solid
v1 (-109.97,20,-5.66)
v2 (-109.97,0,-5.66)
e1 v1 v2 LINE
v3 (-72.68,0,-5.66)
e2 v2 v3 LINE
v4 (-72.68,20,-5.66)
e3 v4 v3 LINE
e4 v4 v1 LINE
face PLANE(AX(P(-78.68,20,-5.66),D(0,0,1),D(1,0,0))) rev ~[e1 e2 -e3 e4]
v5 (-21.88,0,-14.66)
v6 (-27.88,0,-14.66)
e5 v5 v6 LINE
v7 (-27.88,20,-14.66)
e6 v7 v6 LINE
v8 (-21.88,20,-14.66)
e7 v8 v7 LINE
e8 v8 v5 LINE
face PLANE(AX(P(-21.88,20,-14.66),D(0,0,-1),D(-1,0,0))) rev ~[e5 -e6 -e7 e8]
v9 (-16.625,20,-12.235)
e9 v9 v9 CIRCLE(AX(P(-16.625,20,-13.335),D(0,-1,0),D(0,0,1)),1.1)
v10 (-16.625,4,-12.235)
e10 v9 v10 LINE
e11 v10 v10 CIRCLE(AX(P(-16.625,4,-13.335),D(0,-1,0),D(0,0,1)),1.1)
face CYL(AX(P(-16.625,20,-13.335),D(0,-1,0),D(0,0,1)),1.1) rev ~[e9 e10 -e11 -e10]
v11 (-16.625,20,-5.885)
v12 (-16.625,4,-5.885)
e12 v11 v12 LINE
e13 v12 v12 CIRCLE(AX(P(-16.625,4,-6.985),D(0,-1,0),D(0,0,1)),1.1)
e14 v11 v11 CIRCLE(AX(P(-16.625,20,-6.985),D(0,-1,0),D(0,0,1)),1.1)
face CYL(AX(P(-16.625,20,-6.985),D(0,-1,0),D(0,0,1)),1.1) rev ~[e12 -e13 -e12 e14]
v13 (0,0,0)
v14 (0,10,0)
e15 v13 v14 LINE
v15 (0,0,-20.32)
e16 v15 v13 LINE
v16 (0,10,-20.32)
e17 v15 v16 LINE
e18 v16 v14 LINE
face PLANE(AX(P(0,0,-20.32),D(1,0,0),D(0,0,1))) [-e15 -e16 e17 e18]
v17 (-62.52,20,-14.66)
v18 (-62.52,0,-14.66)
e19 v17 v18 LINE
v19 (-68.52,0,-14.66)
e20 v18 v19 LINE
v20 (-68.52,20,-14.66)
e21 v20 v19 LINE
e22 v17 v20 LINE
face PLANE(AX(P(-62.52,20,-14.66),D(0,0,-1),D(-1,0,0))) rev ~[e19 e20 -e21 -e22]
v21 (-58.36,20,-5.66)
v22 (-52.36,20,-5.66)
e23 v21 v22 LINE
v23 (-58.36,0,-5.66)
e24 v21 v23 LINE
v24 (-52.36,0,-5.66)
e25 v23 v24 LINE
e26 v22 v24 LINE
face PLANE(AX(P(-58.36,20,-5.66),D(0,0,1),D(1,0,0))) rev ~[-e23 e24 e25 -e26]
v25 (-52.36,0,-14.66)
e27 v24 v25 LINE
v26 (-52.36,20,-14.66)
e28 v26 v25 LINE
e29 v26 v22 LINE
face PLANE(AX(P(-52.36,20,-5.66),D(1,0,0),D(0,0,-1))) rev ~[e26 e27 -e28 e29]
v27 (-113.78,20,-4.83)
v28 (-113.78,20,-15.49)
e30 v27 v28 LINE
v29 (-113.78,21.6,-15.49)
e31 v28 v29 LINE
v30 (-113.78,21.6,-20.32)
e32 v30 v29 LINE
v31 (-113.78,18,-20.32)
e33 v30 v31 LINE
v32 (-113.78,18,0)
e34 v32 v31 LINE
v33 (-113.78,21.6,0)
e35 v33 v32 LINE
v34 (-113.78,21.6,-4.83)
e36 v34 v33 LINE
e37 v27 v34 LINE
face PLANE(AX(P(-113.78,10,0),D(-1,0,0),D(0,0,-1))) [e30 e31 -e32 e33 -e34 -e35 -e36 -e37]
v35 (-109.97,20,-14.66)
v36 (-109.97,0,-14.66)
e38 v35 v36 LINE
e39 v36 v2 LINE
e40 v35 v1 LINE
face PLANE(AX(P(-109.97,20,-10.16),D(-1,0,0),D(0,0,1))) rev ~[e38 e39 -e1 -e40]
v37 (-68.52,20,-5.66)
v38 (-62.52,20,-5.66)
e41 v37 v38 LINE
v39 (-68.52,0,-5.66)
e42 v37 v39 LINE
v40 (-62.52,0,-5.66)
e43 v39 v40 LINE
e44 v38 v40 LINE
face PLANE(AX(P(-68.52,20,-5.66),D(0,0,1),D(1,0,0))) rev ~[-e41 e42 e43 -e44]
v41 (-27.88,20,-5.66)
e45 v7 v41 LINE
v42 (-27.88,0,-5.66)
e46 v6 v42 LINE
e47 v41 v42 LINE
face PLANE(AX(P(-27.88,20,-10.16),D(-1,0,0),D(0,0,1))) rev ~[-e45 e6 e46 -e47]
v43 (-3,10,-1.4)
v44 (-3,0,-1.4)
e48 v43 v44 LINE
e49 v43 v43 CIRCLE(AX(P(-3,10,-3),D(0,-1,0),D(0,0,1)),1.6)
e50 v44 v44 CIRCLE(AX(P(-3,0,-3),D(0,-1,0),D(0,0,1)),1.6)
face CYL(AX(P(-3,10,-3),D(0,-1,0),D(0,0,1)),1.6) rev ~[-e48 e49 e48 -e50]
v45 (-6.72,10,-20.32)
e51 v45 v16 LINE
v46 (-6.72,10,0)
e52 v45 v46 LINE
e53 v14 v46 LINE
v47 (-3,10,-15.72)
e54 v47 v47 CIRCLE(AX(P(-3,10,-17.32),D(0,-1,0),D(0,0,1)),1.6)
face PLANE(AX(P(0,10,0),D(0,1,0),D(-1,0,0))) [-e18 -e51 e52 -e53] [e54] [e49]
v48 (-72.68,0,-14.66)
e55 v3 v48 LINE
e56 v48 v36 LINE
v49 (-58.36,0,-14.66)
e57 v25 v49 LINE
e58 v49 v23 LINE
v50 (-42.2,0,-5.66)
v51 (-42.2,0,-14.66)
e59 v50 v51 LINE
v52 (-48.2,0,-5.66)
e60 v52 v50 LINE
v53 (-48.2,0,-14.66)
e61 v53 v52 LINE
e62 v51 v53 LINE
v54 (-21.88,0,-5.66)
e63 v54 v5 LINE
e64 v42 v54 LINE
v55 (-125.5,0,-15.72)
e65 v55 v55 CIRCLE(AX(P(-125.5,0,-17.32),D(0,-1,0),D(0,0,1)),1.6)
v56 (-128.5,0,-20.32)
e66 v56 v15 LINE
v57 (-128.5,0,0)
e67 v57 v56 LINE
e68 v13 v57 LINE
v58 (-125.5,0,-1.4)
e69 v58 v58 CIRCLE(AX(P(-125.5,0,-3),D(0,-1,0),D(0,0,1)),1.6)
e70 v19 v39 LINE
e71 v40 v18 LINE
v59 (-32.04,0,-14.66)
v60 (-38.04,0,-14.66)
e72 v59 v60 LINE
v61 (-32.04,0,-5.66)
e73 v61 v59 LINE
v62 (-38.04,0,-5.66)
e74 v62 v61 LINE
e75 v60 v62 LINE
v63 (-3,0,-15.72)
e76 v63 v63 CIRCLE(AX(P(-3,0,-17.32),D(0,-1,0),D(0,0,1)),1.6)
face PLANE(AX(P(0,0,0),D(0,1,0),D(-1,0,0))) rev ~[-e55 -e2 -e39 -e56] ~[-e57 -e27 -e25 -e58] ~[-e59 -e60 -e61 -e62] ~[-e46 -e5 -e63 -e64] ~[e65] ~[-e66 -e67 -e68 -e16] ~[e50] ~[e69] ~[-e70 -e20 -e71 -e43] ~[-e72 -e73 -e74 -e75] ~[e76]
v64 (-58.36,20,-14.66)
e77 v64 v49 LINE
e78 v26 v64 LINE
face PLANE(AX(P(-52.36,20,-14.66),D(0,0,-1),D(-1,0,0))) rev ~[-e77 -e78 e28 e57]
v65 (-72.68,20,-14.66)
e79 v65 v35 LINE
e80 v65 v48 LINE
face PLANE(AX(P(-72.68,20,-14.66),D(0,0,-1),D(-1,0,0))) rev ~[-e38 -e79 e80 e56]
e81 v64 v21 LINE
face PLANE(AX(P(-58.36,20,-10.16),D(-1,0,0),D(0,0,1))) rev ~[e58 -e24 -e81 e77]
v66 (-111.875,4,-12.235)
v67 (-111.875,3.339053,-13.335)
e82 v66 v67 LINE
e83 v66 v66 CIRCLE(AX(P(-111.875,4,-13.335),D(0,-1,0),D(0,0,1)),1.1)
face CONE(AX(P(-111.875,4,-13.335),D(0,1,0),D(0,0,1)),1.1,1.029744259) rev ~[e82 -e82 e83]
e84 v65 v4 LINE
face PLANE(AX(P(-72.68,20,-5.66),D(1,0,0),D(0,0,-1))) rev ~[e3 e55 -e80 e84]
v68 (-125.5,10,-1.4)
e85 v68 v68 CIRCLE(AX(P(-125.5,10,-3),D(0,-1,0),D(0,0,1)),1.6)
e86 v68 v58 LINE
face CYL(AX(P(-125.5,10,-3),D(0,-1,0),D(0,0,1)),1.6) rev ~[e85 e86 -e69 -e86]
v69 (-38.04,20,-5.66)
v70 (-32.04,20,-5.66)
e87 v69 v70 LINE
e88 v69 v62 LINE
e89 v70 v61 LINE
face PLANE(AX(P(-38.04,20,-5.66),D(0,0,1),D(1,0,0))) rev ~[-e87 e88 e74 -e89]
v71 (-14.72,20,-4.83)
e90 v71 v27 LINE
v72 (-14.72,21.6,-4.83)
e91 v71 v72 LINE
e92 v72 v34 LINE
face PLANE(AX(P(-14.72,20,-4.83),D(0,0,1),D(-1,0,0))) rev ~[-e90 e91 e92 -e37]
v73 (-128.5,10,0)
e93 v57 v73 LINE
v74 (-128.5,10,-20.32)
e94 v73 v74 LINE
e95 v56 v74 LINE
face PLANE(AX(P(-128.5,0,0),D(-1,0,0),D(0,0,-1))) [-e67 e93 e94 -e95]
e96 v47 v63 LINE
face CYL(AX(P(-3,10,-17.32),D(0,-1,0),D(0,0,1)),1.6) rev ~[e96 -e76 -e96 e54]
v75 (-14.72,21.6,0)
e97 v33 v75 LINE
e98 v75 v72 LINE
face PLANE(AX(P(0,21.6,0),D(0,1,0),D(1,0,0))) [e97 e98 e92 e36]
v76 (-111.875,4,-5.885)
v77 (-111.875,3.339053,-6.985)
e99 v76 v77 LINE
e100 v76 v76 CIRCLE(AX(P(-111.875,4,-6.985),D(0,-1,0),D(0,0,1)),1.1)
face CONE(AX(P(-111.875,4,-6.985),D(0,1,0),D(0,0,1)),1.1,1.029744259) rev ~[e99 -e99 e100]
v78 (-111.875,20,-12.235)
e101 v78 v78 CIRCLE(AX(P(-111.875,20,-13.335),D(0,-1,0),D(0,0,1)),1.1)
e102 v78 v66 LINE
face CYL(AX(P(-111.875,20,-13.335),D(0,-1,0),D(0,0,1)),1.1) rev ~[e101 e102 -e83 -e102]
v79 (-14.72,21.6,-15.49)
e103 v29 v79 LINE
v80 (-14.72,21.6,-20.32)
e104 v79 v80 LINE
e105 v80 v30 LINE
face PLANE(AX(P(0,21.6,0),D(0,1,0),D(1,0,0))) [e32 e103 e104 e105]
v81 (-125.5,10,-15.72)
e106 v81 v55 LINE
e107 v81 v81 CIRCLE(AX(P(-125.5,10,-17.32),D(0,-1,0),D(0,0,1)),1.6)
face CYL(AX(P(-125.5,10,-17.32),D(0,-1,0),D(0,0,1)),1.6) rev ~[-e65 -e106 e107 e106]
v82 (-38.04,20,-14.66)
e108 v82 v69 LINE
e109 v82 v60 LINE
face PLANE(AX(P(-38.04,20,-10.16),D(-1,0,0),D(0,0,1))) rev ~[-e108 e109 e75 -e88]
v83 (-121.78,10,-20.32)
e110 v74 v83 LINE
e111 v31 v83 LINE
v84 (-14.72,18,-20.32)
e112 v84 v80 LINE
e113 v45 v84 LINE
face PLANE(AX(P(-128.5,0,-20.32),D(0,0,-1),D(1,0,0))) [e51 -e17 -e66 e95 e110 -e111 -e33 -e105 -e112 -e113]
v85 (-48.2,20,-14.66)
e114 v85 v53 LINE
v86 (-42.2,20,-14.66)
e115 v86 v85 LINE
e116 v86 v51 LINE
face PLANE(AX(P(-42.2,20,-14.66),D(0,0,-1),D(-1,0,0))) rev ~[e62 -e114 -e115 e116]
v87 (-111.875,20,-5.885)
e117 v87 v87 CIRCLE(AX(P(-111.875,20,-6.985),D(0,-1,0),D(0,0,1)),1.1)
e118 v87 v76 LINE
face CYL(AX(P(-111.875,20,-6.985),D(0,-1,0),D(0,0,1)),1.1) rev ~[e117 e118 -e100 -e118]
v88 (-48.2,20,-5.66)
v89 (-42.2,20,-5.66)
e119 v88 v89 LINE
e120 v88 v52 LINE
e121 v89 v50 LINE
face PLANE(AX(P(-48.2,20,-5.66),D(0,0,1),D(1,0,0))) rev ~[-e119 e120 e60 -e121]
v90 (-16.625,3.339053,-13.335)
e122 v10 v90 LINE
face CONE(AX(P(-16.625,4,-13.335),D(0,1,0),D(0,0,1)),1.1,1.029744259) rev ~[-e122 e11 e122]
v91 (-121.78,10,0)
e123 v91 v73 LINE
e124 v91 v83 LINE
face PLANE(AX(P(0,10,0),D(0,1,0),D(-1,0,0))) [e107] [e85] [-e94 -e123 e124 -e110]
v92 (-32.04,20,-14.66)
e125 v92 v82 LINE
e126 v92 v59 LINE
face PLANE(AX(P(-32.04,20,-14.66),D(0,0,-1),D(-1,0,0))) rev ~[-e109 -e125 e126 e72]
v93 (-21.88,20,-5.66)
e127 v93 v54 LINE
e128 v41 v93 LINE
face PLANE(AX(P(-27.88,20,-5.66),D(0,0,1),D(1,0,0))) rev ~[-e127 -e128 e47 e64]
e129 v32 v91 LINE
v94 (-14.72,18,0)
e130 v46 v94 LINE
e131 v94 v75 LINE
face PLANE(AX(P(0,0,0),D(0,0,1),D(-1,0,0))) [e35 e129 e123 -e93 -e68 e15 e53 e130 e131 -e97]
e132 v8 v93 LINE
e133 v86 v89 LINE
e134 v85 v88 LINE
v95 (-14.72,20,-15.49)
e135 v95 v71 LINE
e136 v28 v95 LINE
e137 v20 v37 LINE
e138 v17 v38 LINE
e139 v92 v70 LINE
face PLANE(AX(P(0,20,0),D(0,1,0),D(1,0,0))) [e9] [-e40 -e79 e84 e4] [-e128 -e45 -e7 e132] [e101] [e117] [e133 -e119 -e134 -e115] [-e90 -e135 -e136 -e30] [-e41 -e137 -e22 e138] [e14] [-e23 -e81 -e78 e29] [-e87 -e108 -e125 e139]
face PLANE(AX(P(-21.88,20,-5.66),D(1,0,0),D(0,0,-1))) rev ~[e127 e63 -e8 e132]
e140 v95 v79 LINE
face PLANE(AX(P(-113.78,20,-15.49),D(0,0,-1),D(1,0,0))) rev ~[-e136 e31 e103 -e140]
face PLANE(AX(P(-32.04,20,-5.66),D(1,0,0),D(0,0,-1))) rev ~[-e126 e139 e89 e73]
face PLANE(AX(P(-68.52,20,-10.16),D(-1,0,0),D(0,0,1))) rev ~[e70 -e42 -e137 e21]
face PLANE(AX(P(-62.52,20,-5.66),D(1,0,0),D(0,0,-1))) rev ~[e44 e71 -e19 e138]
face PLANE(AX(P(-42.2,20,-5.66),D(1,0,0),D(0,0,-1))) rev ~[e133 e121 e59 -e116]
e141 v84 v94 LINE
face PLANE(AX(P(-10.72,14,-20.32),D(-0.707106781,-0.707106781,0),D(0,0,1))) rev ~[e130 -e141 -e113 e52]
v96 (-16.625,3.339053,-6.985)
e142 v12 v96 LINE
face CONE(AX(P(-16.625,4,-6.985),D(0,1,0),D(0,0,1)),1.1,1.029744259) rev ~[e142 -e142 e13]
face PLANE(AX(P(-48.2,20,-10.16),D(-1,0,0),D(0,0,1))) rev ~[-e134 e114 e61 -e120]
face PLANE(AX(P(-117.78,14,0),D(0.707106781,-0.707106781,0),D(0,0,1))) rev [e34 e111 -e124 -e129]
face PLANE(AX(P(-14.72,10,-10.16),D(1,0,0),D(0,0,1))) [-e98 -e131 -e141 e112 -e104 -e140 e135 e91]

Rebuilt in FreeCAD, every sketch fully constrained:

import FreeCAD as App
import Part
import Sketcher

V = App.Vector


def edges_at(feature, points):
    """Names of the edges that pass closest to the given points."""
    edges = feature.Shape.Edges
    near = lambda p: min(range(len(edges)), key=lambda i: edges[i].distToShape(Part.Vertex(*p))[0])
    return sorted({f"Edge{near(p) + 1}" for p in points})

doc = App.newDocument("Part")
body = doc.addObject("PartDesign::Body", "Body")

sketch1 = body.newObject("Sketcher::SketchObject", "Sketch")
sketch1.AttachmentSupport = (doc.getObject("XZ_Plane"), [""])
sketch1.MapMode = "FlatFace"
sketch1.addGeometry([
    Part.LineSegment(V(-128, 0, 0), V(0, 0, 0)),
    Part.LineSegment(V(0, 0, 0), V(0, -20, 0)),
    Part.LineSegment(V(0, -20, 0), V(-128, -20, 0)),
    Part.LineSegment(V(-128, -20, 0), V(-128, 0, 0)),
], False)
sketch1.addConstraint([
    Sketcher.Constraint("Coincident", 0, 2, 1, 1),
    Sketcher.Constraint("Coincident", 1, 2, 2, 1),
    Sketcher.Constraint("Coincident", 2, 2, 3, 1),
    Sketcher.Constraint("Coincident", 3, 2, 0, 1),
    Sketcher.Constraint("Horizontal", 0),
    Sketcher.Constraint("Vertical", 1),
    Sketcher.Constraint("Horizontal", 2),
    Sketcher.Constraint("Vertical", 3),
    Sketcher.Constraint("Coincident", 0, 2, -1, 1),
    Sketcher.Constraint("DistanceX", 0, 1, 0, 2, 128.5),
    Sketcher.Constraint("DistanceY", 1, 2, 1, 1, 20.32),
])
pad1 = body.newObject("PartDesign::Pad", "Pad")
pad1.Profile = sketch1
pad1.Length = 10
pad1.Reversed = True

sketch2 = body.newObject("Sketcher::SketchObject", "Sketch001")
sketch2.AttachmentSupport = (doc.getObject("XZ_Plane"), [""])
sketch2.MapMode = "FlatFace"
sketch2.AttachmentOffset = App.Placement(V(0, 0, -10), App.Rotation())
sketch2.addGeometry([
    Part.LineSegment(V(-114, -20, 0), V(-114, 0, 0)),
    Part.LineSegment(V(-114, 0, 0), V(-15, 0, 0)),
    Part.LineSegment(V(-15, 0, 0), V(-15, -20, 0)),
    Part.LineSegment(V(-15, -20, 0), V(-114, -20, 0)),
], False)
sketch2.addConstraint([
    Sketcher.Constraint("Coincident", 0, 2, 1, 1),
    Sketcher.Constraint("Coincident", 1, 2, 2, 1),
    Sketcher.Constraint("Coincident", 2, 2, 3, 1),
    Sketcher.Constraint("Coincident", 3, 2, 0, 1),
    Sketcher.Constraint("Vertical", 0),
    Sketcher.Constraint("Horizontal", 1),
    Sketcher.Constraint("Vertical", 2),
    Sketcher.Constraint("Horizontal", 3),
    Sketcher.Constraint("PointOnObject", 0, 2, -1),
    Sketcher.Constraint("DistanceX", 1, 1, 1, 2, 99.06),
    Sketcher.Constraint("DistanceY", 0, 1, 0, 2, 20.32),
    Sketcher.Constraint("DistanceX", 0, 2, -1, 1, 113.78),
])
pad2 = body.newObject("PartDesign::Pad", "Pad001")
pad2.Profile = sketch2
pad2.Length = 10
pad2.Reversed = True

sketch3 = body.newObject("Sketcher::SketchObject", "Sketch002")
sketch3.AttachmentSupport = (doc.getObject("XZ_Plane"), [""])
sketch3.MapMode = "FlatFace"
sketch3.AttachmentOffset = App.Placement(V(0, 0, -10), App.Rotation())
sketch3.addGeometry([
    Part.Circle(V(-125.5, -3, 0), V(0, 0, 1), 1.6),
    Part.Circle(V(-125.5, -17.3, 0), V(0, 0, 1), 1.6),
    Part.Circle(V(-3, -17.3, 0), V(0, 0, 1), 1.6),
    Part.Circle(V(-3, -3, 0), V(0, 0, 1), 1.6),
], False)
sketch3.addConstraint([
    Sketcher.Constraint("Equal", 0, 1),
    Sketcher.Constraint("Equal", 1, 2),
    Sketcher.Constraint("Equal", 2, 3),
    Sketcher.Constraint("Horizontal", 1, 3, 2, 3),
    Sketcher.Constraint("Horizontal", 0, 3, 3, 3),
    Sketcher.Constraint("Vertical", 0, 3, 1, 3),
    Sketcher.Constraint("Vertical", 2, 3, 3, 3),
    Sketcher.Constraint("Diameter", 0, 3.2),
    Sketcher.Constraint("DistanceY", 0, 3, -1, 1, 3.0),
    Sketcher.Constraint("DistanceX", 2, 3, -1, 1, 3.0),
    Sketcher.Constraint("DistanceX", 0, 3, -1, 1, 125.5),
    Sketcher.Constraint("DistanceY", 1, 3, -1, 1, 17.32),
])
doc.recompute()
hole = body.newObject("PartDesign::Hole", "Hole")
hole.Profile = sketch3
hole.ThreadType = "None"
hole.Diameter = 3.2
hole.DepthType = "ThroughAll"
hole.Reversed = True

sketch4 = body.newObject("Sketcher::SketchObject", "Sketch003")
sketch4.AttachmentSupport = (doc.getObject("XZ_Plane"), [""])
sketch4.MapMode = "FlatFace"
sketch4.AttachmentOffset = App.Placement(V(0, 0, -20), App.Rotation())
sketch4.addGeometry([
    Part.LineSegment(V(-22, -6, 0), V(-22, -15, 0)),
    Part.LineSegment(V(-22, -15, 0), V(-28, -15, 0)),
    Part.LineSegment(V(-28, -15, 0), V(-28, -6, 0)),
    Part.LineSegment(V(-28, -6, 0), V(-22, -6, 0)),
    Part.LineSegment(V(-73, -6, 0), V(-73, -15, 0)),
    Part.LineSegment(V(-73, -15, 0), V(-110, -15, 0)),
    Part.LineSegment(V(-110, -15, 0), V(-110, -6, 0)),
    Part.LineSegment(V(-110, -6, 0), V(-73, -6, 0)),
    Part.LineSegment(V(-63, -6, 0), V(-63, -15, 0)),
    Part.LineSegment(V(-63, -15, 0), V(-69, -15, 0)),
    Part.LineSegment(V(-69, -15, 0), V(-69, -6, 0)),
    Part.LineSegment(V(-69, -6, 0), V(-63, -6, 0)),
    Part.LineSegment(V(-52, -6, 0), V(-52, -15, 0)),
    Part.LineSegment(V(-52, -15, 0), V(-58, -15, 0)),
    Part.LineSegment(V(-58, -15, 0), V(-58, -6, 0)),
    Part.LineSegment(V(-58, -6, 0), V(-52, -6, 0)),
    Part.LineSegment(V(-42, -6, 0), V(-42, -15, 0)),
    Part.LineSegment(V(-42, -15, 0), V(-48, -15, 0)),
    Part.LineSegment(V(-48, -15, 0), V(-48, -6, 0)),
    Part.LineSegment(V(-48, -6, 0), V(-42, -6, 0)),
    Part.LineSegment(V(-32, -6, 0), V(-32, -15, 0)),
    Part.LineSegment(V(-32, -15, 0), V(-38, -15, 0)),
    Part.LineSegment(V(-38, -15, 0), V(-38, -6, 0)),
    Part.LineSegment(V(-38, -6, 0), V(-32, -6, 0)),
], False)
sketch4.addConstraint([
    Sketcher.Constraint("Coincident", 0, 2, 1, 1),
    Sketcher.Constraint("Coincident", 1, 2, 2, 1),
    Sketcher.Constraint("Coincident", 2, 2, 3, 1),
    Sketcher.Constraint("Coincident", 3, 2, 0, 1),
    Sketcher.Constraint("Coincident", 4, 2, 5, 1),
    Sketcher.Constraint("Coincident", 5, 2, 6, 1),
    Sketcher.Constraint("Coincident", 6, 2, 7, 1),
    Sketcher.Constraint("Coincident", 7, 2, 4, 1),
    Sketcher.Constraint("Coincident", 8, 2, 9, 1),
    Sketcher.Constraint("Coincident", 9, 2, 10, 1),
    Sketcher.Constraint("Coincident", 10, 2, 11, 1),
    Sketcher.Constraint("Coincident", 11, 2, 8, 1),
    Sketcher.Constraint("Coincident", 12, 2, 13, 1),
    Sketcher.Constraint("Coincident", 13, 2, 14, 1),
    Sketcher.Constraint("Coincident", 14, 2, 15, 1),
    Sketcher.Constraint("Coincident", 15, 2, 12, 1),
    Sketcher.Constraint("Coincident", 16, 2, 17, 1),
    Sketcher.Constraint("Coincident", 17, 2, 18, 1),
    Sketcher.Constraint("Coincident", 18, 2, 19, 1),
    Sketcher.Constraint("Coincident", 19, 2, 16, 1),
    Sketcher.Constraint("Coincident", 20, 2, 21, 1),
    Sketcher.Constraint("Coincident", 21, 2, 22, 1),
    Sketcher.Constraint("Coincident", 22, 2, 23, 1),
    Sketcher.Constraint("Coincident", 23, 2, 20, 1),
    Sketcher.Constraint("Vertical", 0),
    Sketcher.Constraint("Horizontal", 1),
    Sketcher.Constraint("Vertical", 2),
    Sketcher.Constraint("Horizontal", 3),
    Sketcher.Constraint("Vertical", 4),
    Sketcher.Constraint("Horizontal", 5),
    Sketcher.Constraint("Vertical", 6),
    Sketcher.Constraint("Horizontal", 7),
    Sketcher.Constraint("Vertical", 8),
    Sketcher.Constraint("Horizontal", 9),
    Sketcher.Constraint("Vertical", 10),
    Sketcher.Constraint("Horizontal", 11),
    Sketcher.Constraint("Vertical", 12),
    Sketcher.Constraint("Horizontal", 13),
    Sketcher.Constraint("Vertical", 14),
    Sketcher.Constraint("Horizontal", 15),
    Sketcher.Constraint("Vertical", 16),
    Sketcher.Constraint("Horizontal", 17),
    Sketcher.Constraint("Vertical", 18),
    Sketcher.Constraint("Horizontal", 19),
    Sketcher.Constraint("Vertical", 20),
    Sketcher.Constraint("Horizontal", 21),
    Sketcher.Constraint("Vertical", 22),
    Sketcher.Constraint("Horizontal", 23),
    Sketcher.Constraint("Horizontal", 1, 2, 4, 2),
    Sketcher.Constraint("Horizontal", 3, 2, 6, 2),
    Sketcher.Constraint("Horizontal", 5, 2, 8, 2),
    Sketcher.Constraint("Horizontal", 7, 2, 10, 2),
    Sketcher.Constraint("Horizontal", 9, 2, 12, 2),
    Sketcher.Constraint("Horizontal", 11, 2, 14, 2),
    Sketcher.Constraint("Horizontal", 13, 2, 16, 2),
    Sketcher.Constraint("Horizontal", 15, 2, 18, 2),
    Sketcher.Constraint("Horizontal", 17, 2, 20, 2),
    Sketcher.Constraint("Horizontal", 19, 2, 22, 2),
    Sketcher.Constraint("Equal", 3, 9),
    Sketcher.Constraint("Equal", 11, 13),
    Sketcher.Constraint("Equal", 15, 17),
    Sketcher.Constraint("Equal", 19, 21),
    Sketcher.Constraint("DistanceX", 1, 2, 1, 1, 6.0),
    Sketcher.Constraint("DistanceY", 0, 2, 0, 1, 9.0),
    Sketcher.Constraint("DistanceX", 4, 2, 8, 2, 10.16),
    Sketcher.Constraint("DistanceX", 8, 2, 12, 2, 10.16),
    Sketcher.Constraint("DistanceX", 12, 2, 16, 2, 10.16),
    Sketcher.Constraint("DistanceX", 20, 2, 0, 2, 10.16),
    Sketcher.Constraint("DistanceX", 16, 2, 20, 2, 10.16),
    Sketcher.Constraint("DistanceX", 5, 2, 5, 1, 37.29),
    Sketcher.Constraint("DistanceX", 16, 2, -1, 1, 42.2),
    Sketcher.Constraint("DistanceY", 0, 2, -1, 1, 14.66),
])
pocket1 = body.newObject("PartDesign::Pocket", "Pocket")
pocket1.Profile = sketch4
pocket1.Type = "ThroughAll"
pocket1.Reversed = True

sketch5 = body.newObject("Sketcher::SketchObject", "Sketch004")
sketch5.AttachmentSupport = (doc.getObject("XZ_Plane"), [""])
sketch5.MapMode = "FlatFace"
sketch5.AttachmentOffset = App.Placement(V(0, 0, -20), App.Rotation())
sketch5.addGeometry([
    Part.Circle(V(-16.6, -13.3, 0), V(0, 0, 1), 1.1),
    Part.Circle(V(-16.6, -7, 0), V(0, 0, 1), 1.1),
    Part.Circle(V(-111.9, -13.3, 0), V(0, 0, 1), 1.1),
    Part.Circle(V(-111.9, -7, 0), V(0, 0, 1), 1.1),
], False)
sketch5.addConstraint([
    Sketcher.Constraint("Equal", 0, 1),
    Sketcher.Constraint("Equal", 1, 2),
    Sketcher.Constraint("Equal", 2, 3),
    Sketcher.Constraint("Horizontal", 0, 3, 2, 3),
    Sketcher.Constraint("Horizontal", 1, 3, 3, 3),
    Sketcher.Constraint("Vertical", 0, 3, 1, 3),
    Sketcher.Constraint("Vertical", 2, 3, 3, 3),
    Sketcher.Constraint("Diameter", 0, 2.2),
    Sketcher.Constraint("DistanceY", 0, 3, 1, 3, 6.35),
    Sketcher.Constraint("DistanceX", 2, 3, 0, 3, 95.25),
    Sketcher.Constraint("DistanceX", 0, 3, -1, 1, 16.625),
    Sketcher.Constraint("DistanceY", 0, 3, -1, 1, 13.335),
])
doc.recompute()
hole2 = body.newObject("PartDesign::Hole", "Hole001")
hole2.Profile = sketch5
hole2.ThreadType = "None"
hole2.Diameter = 2.2
hole2.DepthType = "Dimension"
hole2.Depth = 16
hole2.DrillPoint = "Angled"
hole2.DrillPointAngle = 118
hole2.Reversed = True
doc.recompute()

chamfer = body.newObject("PartDesign::Chamfer", "Chamfer")
chamfer.Base = (hole2, edges_at(hole2, [(-14.72, 10, -10.16), (-113.78, 10, -10.16)]))
chamfer.Size = 8

sketch6 = body.newObject("Sketcher::SketchObject", "Sketch005")
sketch6.AttachmentSupport = (doc.getObject("XZ_Plane"), [""])
sketch6.MapMode = "FlatFace"
sketch6.AttachmentOffset = App.Placement(V(0, 0, -20), App.Rotation())
sketch6.addGeometry([
    Part.LineSegment(V(-113.8, 0, 0), V(-14.7, 0, 0)),
    Part.LineSegment(V(-14.7, 0, 0), V(-14.7, -4.8, 0)),
    Part.LineSegment(V(-14.7, -4.8, 0), V(-113.8, -4.8, 0)),
    Part.LineSegment(V(-113.8, -4.8, 0), V(-113.8, 0, 0)),
    Part.LineSegment(V(-113.8, -15.5, 0), V(-14.7, -15.5, 0)),
    Part.LineSegment(V(-14.7, -15.5, 0), V(-14.7, -20.3, 0)),
    Part.LineSegment(V(-14.7, -20.3, 0), V(-113.8, -20.3, 0)),
    Part.LineSegment(V(-113.8, -20.3, 0), V(-113.8, -15.5, 0)),
], False)
sketch6.addConstraint([
    Sketcher.Constraint("Coincident", 0, 2, 1, 1),
    Sketcher.Constraint("Coincident", 1, 2, 2, 1),
    Sketcher.Constraint("Coincident", 2, 2, 3, 1),
    Sketcher.Constraint("Coincident", 3, 2, 0, 1),
    Sketcher.Constraint("Coincident", 4, 2, 5, 1),
    Sketcher.Constraint("Coincident", 5, 2, 6, 1),
    Sketcher.Constraint("Coincident", 6, 2, 7, 1),
    Sketcher.Constraint("Coincident", 7, 2, 4, 1),
    Sketcher.Constraint("Horizontal", 0),
    Sketcher.Constraint("Vertical", 1),
    Sketcher.Constraint("Horizontal", 2),
    Sketcher.Constraint("Vertical", 3),
    Sketcher.Constraint("Horizontal", 4),
    Sketcher.Constraint("Vertical", 5),
    Sketcher.Constraint("Horizontal", 6),
    Sketcher.Constraint("Vertical", 7),
    Sketcher.Constraint("PointOnObject", 0, 2, -1),
    Sketcher.Constraint("Vertical", 1, 2, 4, 2),
    Sketcher.Constraint("Vertical", 3, 2, 6, 2),
    Sketcher.Constraint("Equal", 3, 5),
    Sketcher.Constraint("DistanceY", 4, 2, 1, 2, 10.66),
    Sketcher.Constraint("DistanceX", 0, 1, 0, 2, 99.06),
    Sketcher.Constraint("DistanceY", 1, 2, 1, 1, 4.83),
    Sketcher.Constraint("DistanceX", 0, 2, -1, 1, 14.72),
])
pad3 = body.newObject("PartDesign::Pad", "Pad002")
pad3.Profile = sketch6
pad3.Length = 1.6
pad3.Reversed = True

doc.recompute()
